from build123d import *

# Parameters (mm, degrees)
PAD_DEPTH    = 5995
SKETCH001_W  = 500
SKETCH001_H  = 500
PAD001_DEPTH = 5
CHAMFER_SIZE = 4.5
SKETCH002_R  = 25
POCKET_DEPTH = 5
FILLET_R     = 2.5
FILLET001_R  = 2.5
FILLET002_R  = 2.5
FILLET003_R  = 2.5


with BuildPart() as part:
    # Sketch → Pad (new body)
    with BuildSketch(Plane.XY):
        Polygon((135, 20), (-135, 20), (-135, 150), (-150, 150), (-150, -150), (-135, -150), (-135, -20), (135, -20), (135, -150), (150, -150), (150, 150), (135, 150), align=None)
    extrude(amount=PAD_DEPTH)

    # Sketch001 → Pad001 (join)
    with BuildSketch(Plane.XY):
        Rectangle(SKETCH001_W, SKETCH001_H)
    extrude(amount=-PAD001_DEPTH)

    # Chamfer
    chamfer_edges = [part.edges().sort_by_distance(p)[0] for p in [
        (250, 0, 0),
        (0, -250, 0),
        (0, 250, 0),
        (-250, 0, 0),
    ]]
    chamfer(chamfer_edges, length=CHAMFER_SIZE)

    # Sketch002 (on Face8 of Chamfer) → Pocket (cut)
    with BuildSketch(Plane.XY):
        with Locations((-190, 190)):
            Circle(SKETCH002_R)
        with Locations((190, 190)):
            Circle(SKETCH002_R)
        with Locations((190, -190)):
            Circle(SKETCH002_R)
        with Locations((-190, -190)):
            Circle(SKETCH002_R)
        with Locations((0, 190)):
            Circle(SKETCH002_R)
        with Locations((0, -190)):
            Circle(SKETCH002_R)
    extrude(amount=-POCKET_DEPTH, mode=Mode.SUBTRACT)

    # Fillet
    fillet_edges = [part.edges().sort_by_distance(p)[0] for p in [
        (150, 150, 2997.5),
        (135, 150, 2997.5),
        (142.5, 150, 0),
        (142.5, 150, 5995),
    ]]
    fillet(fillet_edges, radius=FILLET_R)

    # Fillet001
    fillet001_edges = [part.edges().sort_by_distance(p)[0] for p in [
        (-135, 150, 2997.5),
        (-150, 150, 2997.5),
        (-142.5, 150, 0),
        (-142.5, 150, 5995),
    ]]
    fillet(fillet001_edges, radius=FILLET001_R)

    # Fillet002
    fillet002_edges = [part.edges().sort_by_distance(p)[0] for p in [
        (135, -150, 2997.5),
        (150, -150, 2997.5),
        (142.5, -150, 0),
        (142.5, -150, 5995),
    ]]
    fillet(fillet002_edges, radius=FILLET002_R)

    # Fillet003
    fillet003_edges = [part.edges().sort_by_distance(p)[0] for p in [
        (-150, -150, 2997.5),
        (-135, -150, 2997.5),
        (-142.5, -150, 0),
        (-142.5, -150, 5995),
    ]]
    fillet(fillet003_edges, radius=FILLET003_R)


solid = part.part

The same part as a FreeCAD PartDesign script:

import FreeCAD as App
import Part
import Sketcher

V = App.Vector


def edges_at(feature, points):
    """Names of the edges that pass closest to the given points."""
    edges = feature.Shape.Edges
    near = lambda p: min(range(len(edges)), key=lambda i: edges[i].distToShape(Part.Vertex(*p))[0])
    return sorted({f"Edge{near(p) + 1}" for p in points})

doc = App.newDocument("Part")
params = doc.addObject("Spreadsheet::Sheet", "Params")
for row, (alias, value) in enumerate([
    ("sketch1_width", "270 mm"),
    ("sketch1_width2", "15 mm"),
    ("sketch1_height", "130 mm"),
    ("sketch1_height2", "300 mm"),
    ("pad1_length", "5995 mm"),
    ("sketch2_width", "500 mm"),
    ("pad2_length", "5 mm"),
    ("chamfer_size", "4.5 mm"),
    ("sketch3_diameter", "50 mm"),
    ("pocket1_length", "5 mm"),
    ("fillet_radius", "2.5 mm"),
    ("fillet2_radius", "2.5 mm"),
    ("fillet3_radius", "2.5 mm"),
    ("fillet4_radius", "2.5 mm"),
], start=1):
    params.set(f"A{row}", alias)
    params.set(f"B{row}", "=" + value)
    params.setAlias(f"B{row}", alias)

body = doc.addObject("PartDesign::Body", "Body")

# Sketch on XY plane
sketch1 = body.newObject("Sketcher::SketchObject", "Sketch")
sketch1.AttachmentSupport = (doc.getObject("XY_Plane"), [""])
sketch1.MapMode = "FlatFace"
sketch1.addGeometry([
    Part.LineSegment(V(135, 20, 0), V(-135, 20, 0)),  # 0
    Part.LineSegment(V(-135, 20, 0), V(-135, 150, 0)),  # 1
    Part.LineSegment(V(-135, 150, 0), V(-150, 150, 0)),  # 2
    Part.LineSegment(V(-150, 150, 0), V(-150, -150, 0)),  # 3
    Part.LineSegment(V(-150, -150, 0), V(-135, -150, 0)),  # 4
    Part.LineSegment(V(-135, -150, 0), V(-135, -20, 0)),  # 5
    Part.LineSegment(V(-135, -20, 0), V(135, -20, 0)),  # 6
    Part.LineSegment(V(135, -20, 0), V(135, -150, 0)),  # 7
    Part.LineSegment(V(135, -150, 0), V(150, -150, 0)),  # 8
    Part.LineSegment(V(150, -150, 0), V(150, 150, 0)),  # 9
    Part.LineSegment(V(150, 150, 0), V(135, 150, 0)),  # 10
    Part.LineSegment(V(135, 150, 0), V(135, 20, 0)),  # 11
], False)
sketch1.addConstraint([
    Sketcher.Constraint("Coincident", 0, 2, 1, 1),
    Sketcher.Constraint("Coincident", 1, 2, 2, 1),
    Sketcher.Constraint("Coincident", 2, 2, 3, 1),
    Sketcher.Constraint("Coincident", 3, 2, 4, 1),
    Sketcher.Constraint("Coincident", 4, 2, 5, 1),
    Sketcher.Constraint("Coincident", 5, 2, 6, 1),
    Sketcher.Constraint("Coincident", 6, 2, 7, 1),
    Sketcher.Constraint("Coincident", 7, 2, 8, 1),
    Sketcher.Constraint("Coincident", 8, 2, 9, 1),
    Sketcher.Constraint("Coincident", 9, 2, 10, 1),
    Sketcher.Constraint("Coincident", 10, 2, 11, 1),
    Sketcher.Constraint("Coincident", 11, 2, 0, 1),
    Sketcher.Constraint("Horizontal", 0),
    Sketcher.Constraint("Vertical", 1),
    Sketcher.Constraint("Horizontal", 2),
    Sketcher.Constraint("Vertical", 3),
    Sketcher.Constraint("Horizontal", 4),
    Sketcher.Constraint("Vertical", 5),
    Sketcher.Constraint("Horizontal", 6),
    Sketcher.Constraint("Vertical", 7),
    Sketcher.Constraint("Horizontal", 8),
    Sketcher.Constraint("Vertical", 9),
    Sketcher.Constraint("Horizontal", 10),
    Sketcher.Constraint("Vertical", 11),
    Sketcher.Constraint("Symmetric", 0, 2, 6, 2, -1, 1),
    Sketcher.Constraint("Symmetric", 2, 2, 8, 2, -1, 1),
    Sketcher.Constraint("Symmetric", 4, 2, 10, 2, -1, 1),
    Sketcher.Constraint("Symmetric", 4, 2, 7, 2, -2),
    Sketcher.Constraint("DistanceX", 0, 2, 0, 1, 270.0),
    Sketcher.Constraint("DistanceX", 2, 2, 2, 1, 15.0),
    Sketcher.Constraint("DistanceY", 1, 1, 1, 2, 130.0),
    Sketcher.Constraint("DistanceY", 3, 2, 3, 1, 300.0),
])
sketch1.setExpression("Constraints[28]", "Params.sketch1_width")
sketch1.setExpression("Constraints[29]", "Params.sketch1_width2")
sketch1.setExpression("Constraints[30]", "Params.sketch1_height")
sketch1.setExpression("Constraints[31]", "Params.sketch1_height2")
pad1 = body.newObject("PartDesign::Pad", "Pad")
pad1.Profile = sketch1
pad1.setExpression("Length", "Params.pad1_length")

# Sketch on XY plane
sketch2 = body.newObject("Sketcher::SketchObject", "Sketch001")
sketch2.AttachmentSupport = (doc.getObject("XY_Plane"), [""])
sketch2.MapMode = "FlatFace"
sketch2.addGeometry([
    Part.LineSegment(V(-250, 250, 0), V(-250, -250, 0)),
    Part.LineSegment(V(-250, -250, 0), V(250, -250, 0)),
    Part.LineSegment(V(250, -250, 0), V(250, 250, 0)),
    Part.LineSegment(V(250, 250, 0), V(-250, 250, 0)),
], False)
sketch2.addConstraint([
    Sketcher.Constraint("Coincident", 0, 2, 1, 1),
    Sketcher.Constraint("Coincident", 1, 2, 2, 1),
    Sketcher.Constraint("Coincident", 2, 2, 3, 1),
    Sketcher.Constraint("Coincident", 3, 2, 0, 1),
    Sketcher.Constraint("Vertical", 0),
    Sketcher.Constraint("Horizontal", 1),
    Sketcher.Constraint("Vertical", 2),
    Sketcher.Constraint("Horizontal", 3),
    Sketcher.Constraint("Symmetric", 0, 2, 2, 2, -1, 1),
    Sketcher.Constraint("Equal", 3, 0),
    Sketcher.Constraint("DistanceX", 1, 1, 1, 2, 500.0),
])
sketch2.setExpression("Constraints[10]", "Params.sketch2_width")
pad2 = body.newObject("PartDesign::Pad", "Pad001")
pad2.Profile = sketch2
pad2.setExpression("Length", "Params.pad2_length")
pad2.Reversed = True
doc.recompute()

chamfer = body.newObject("PartDesign::Chamfer", "Chamfer")
chamfer.Base = (pad2, edges_at(pad2, [
    (250, 0, 0),
    (0, -250, 0),
    (0, 250, 0),
    (-250, 0, 0),
]))
chamfer.setExpression("Size", "Params.chamfer_size")

# Sketch on XY plane
sketch3 = body.newObject("Sketcher::SketchObject", "Sketch002")
sketch3.AttachmentSupport = (doc.getObject("XY_Plane"), [""])
sketch3.MapMode = "FlatFace"
sketch3.addGeometry([
    Part.Circle(V(-190, 190, 0), V(0, 0, 1), 25),  # 0
    Part.Circle(V(190, 190, 0), V(0, 0, 1), 25),  # 1
    Part.Circle(V(190, -190, 0), V(0, 0, 1), 25),  # 2
    Part.Circle(V(-190, -190, 0), V(0, 0, 1), 25),  # 3
    Part.Circle(V(0, 190, 0), V(0, 0, 1), 25),  # 4
    Part.Circle(V(0, -190, 0), V(0, 0, 1), 25),  # 5
], False)
sketch3.addConstraint([
    Sketcher.Constraint("Equal", 0, 1),
    Sketcher.Constraint("Equal", 1, 2),
    Sketcher.Constraint("Equal", 2, 3),
    Sketcher.Constraint("Equal", 3, 4),
    Sketcher.Constraint("Equal", 4, 5),
    Sketcher.Constraint("Symmetric", 0, 3, 2, 3, -1, 1),
    Sketcher.Constraint("Symmetric", 1, 3, 3, 3, -1, 1),
    Sketcher.Constraint("Symmetric", 4, 3, 5, 3, -1, 1),
    Sketcher.Constraint("Symmetric", 0, 3, 1, 3, -2),
    Sketcher.Constraint("PointOnObject", 4, 3, -2),
    Sketcher.Constraint("Horizontal", 1, 3, 4, 3),
    Sketcher.Constraint("Diameter", 0, 50.0),
    Sketcher.Constraint("DistanceX", 0, 3, -1, 1, 190.0),
    Sketcher.Constraint("DistanceY", -1, 1, 0, 3, 190.0),
])
sketch3.setExpression("Constraints[11]", "Params.sketch3_diameter")
pocket1 = body.newObject("PartDesign::Pocket", "Pocket")
pocket1.Profile = sketch3
pocket1.setExpression("Length", "Params.pocket1_length")
doc.recompute()

fillet = body.newObject("PartDesign::Fillet", "Fillet")
fillet.Base = (pocket1, edges_at(pocket1, [
    (150, 150, 2997.5),
    (135, 150, 2997.5),
    (142.5, 150, 0),
    (142.5, 150, 5995),
]))
fillet.setExpression("Radius", "Params.fillet_radius")
doc.recompute()

fillet2 = body.newObject("PartDesign::Fillet", "Fillet001")
fillet2.Base = (fillet, edges_at(fillet, [
    (-135, 150, 2997.5),
    (-150, 150, 2997.5),
    (-142.5, 150, 0),
    (-142.5, 150, 5995),
]))
fillet2.setExpression("Radius", "Params.fillet2_radius")
doc.recompute()

fillet3 = body.newObject("PartDesign::Fillet", "Fillet002")
fillet3.Base = (fillet2, edges_at(fillet2, [
    (135, -150, 2997.5),
    (150, -150, 2997.5),
    (142.5, -150, 0),
    (142.5, -150, 5995),
]))
fillet3.setExpression("Radius", "Params.fillet3_radius")
doc.recompute()

fillet4 = body.newObject("PartDesign::Fillet", "Fillet003")
fillet4.Base = (fillet3, edges_at(fillet3, [
    (-150, -150, 2997.5),
    (-135, -150, 2997.5),
    (-142.5, -150, 0),
    (-142.5, -150, 5995),
]))
fillet4.setExpression("Radius", "Params.fillet4_radius")

doc.recompute()
